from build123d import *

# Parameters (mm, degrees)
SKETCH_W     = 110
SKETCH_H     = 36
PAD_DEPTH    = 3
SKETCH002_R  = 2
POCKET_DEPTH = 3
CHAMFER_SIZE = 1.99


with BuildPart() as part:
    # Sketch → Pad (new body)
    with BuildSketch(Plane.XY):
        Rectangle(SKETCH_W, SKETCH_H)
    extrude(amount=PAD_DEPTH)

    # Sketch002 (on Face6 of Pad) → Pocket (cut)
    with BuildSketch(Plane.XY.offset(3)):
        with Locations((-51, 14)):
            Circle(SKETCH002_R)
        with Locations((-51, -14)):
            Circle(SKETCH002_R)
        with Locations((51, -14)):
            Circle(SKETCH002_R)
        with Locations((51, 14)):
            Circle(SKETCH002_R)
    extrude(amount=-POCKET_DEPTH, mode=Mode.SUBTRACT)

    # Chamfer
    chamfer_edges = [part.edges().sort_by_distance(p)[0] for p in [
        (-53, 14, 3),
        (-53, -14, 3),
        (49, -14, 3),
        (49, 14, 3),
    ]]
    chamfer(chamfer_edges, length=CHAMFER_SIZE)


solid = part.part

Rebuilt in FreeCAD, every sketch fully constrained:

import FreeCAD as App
import Part
import Sketcher
Q = App.Units.Quantity


def edges_at(feature, points):
    """Names of the edges that pass closest to the given points."""
    edges = feature.Shape.Edges
    near = lambda p: min(range(len(edges)), key=lambda i: edges[i].distToShape(Part.Vertex(*p))[0])
    return sorted({f"Edge{near(p) + 1}" for p in points})


def add_polygon(sketch, points):
    """Adds a closed chain of lines whose ends are joined by coincident constraints."""
    first, n = sketch.GeometryCount, len(points)
    for a, b in zip(points, points[1:] + points[:1]):
        sketch.addGeometry(Part.LineSegment(App.Vector(*a, 0), App.Vector(*b, 0)), False)
    for i in range(n):
        sketch.addConstraint(Sketcher.Constraint("Coincident", first + i, 2, first + (i + 1) % n, 1))

doc = App.newDocument("Part")
body = doc.addObject("PartDesign::Body", "Body")

sketch1 = doc.addObject("Sketcher::SketchObject", "Sketch")
body.addObject(sketch1)
sketch1.AttachmentSupport = (doc.XY_Plane, [""])
sketch1.MapMode = "FlatFace"
add_polygon(sketch1, [(-55, 18), (-55, -18), (55, -18), (55, 18)])
sketch1.addConstraint(Sketcher.Constraint("Vertical", 0))
sketch1.addConstraint(Sketcher.Constraint("Horizontal", 1))
sketch1.addConstraint(Sketcher.Constraint("Vertical", 2))
sketch1.addConstraint(Sketcher.Constraint("Horizontal", 3))
sketch1.addConstraint(Sketcher.Constraint("Symmetric", 0, 2, 2, 2, -1, 1))
sketch1.addConstraint(Sketcher.Constraint("DistanceX", 1, 1, 1, 2, Q("110 mm")))
sketch1.addConstraint(Sketcher.Constraint("DistanceY", 0, 2, 0, 1, Q("36 mm")))
pad1 = doc.addObject("PartDesign::Pad", "Pad")
body.addObject(pad1)
pad1.Profile = sketch1
pad1.Length = 3

sketch2 = doc.addObject("Sketcher::SketchObject", "Sketch001")
body.addObject(sketch2)
sketch2.AttachmentSupport = (doc.XY_Plane, [""])
sketch2.MapMode = "FlatFace"
sketch2.AttachmentOffset = App.Placement(App.Vector(0, 0, 3), App.Rotation())
sketch2.addGeometry(Part.Circle(App.Vector(-51, 14, 0), App.Vector(0, 0, 1), 2), False)
sketch2.addGeometry(Part.Circle(App.Vector(-51, -14, 0), App.Vector(0, 0, 1), 2), False)
sketch2.addGeometry(Part.Circle(App.Vector(51, -14, 0), App.Vector(0, 0, 1), 2), False)
sketch2.addGeometry(Part.Circle(App.Vector(51, 14, 0), App.Vector(0, 0, 1), 2), False)
sketch2.addConstraint(Sketcher.Constraint("Equal", 0, 1))
sketch2.addConstraint(Sketcher.Constraint("Equal", 1, 2))
sketch2.addConstraint(Sketcher.Constraint("Equal", 2, 3))
sketch2.addConstraint(Sketcher.Constraint("Symmetric", 0, 3, 2, 3, -1, 1))
sketch2.addConstraint(Sketcher.Constraint("Symmetric", 1, 3, 3, 3, -1, 1))
sketch2.addConstraint(Sketcher.Constraint("Symmetric", 1, 3, 2, 3, -2))
sketch2.addConstraint(Sketcher.Constraint("Diameter", 0, Q("4 mm")))
sketch2.addConstraint(Sketcher.Constraint("DistanceX", 0, 3, -1, 1, Q("51 mm")))
sketch2.addConstraint(Sketcher.Constraint("DistanceY", -1, 1, 0, 3, Q("14 mm")))
pocket1 = doc.addObject("PartDesign::Pocket", "Pocket")
body.addObject(pocket1)
pocket1.Profile = sketch2
pocket1.Length = 3
doc.recompute()

chamfer = doc.addObject("PartDesign::Chamfer", "Chamfer")
body.addObject(chamfer)
chamfer.Base = (pocket1, edges_at(pocket1, [
    (-53, 14, 3),
    (-53, -14, 3),
    (49, -14, 3),
    (49, 14, 3),
]))
chamfer.Size = 1.99

doc.recompute()
